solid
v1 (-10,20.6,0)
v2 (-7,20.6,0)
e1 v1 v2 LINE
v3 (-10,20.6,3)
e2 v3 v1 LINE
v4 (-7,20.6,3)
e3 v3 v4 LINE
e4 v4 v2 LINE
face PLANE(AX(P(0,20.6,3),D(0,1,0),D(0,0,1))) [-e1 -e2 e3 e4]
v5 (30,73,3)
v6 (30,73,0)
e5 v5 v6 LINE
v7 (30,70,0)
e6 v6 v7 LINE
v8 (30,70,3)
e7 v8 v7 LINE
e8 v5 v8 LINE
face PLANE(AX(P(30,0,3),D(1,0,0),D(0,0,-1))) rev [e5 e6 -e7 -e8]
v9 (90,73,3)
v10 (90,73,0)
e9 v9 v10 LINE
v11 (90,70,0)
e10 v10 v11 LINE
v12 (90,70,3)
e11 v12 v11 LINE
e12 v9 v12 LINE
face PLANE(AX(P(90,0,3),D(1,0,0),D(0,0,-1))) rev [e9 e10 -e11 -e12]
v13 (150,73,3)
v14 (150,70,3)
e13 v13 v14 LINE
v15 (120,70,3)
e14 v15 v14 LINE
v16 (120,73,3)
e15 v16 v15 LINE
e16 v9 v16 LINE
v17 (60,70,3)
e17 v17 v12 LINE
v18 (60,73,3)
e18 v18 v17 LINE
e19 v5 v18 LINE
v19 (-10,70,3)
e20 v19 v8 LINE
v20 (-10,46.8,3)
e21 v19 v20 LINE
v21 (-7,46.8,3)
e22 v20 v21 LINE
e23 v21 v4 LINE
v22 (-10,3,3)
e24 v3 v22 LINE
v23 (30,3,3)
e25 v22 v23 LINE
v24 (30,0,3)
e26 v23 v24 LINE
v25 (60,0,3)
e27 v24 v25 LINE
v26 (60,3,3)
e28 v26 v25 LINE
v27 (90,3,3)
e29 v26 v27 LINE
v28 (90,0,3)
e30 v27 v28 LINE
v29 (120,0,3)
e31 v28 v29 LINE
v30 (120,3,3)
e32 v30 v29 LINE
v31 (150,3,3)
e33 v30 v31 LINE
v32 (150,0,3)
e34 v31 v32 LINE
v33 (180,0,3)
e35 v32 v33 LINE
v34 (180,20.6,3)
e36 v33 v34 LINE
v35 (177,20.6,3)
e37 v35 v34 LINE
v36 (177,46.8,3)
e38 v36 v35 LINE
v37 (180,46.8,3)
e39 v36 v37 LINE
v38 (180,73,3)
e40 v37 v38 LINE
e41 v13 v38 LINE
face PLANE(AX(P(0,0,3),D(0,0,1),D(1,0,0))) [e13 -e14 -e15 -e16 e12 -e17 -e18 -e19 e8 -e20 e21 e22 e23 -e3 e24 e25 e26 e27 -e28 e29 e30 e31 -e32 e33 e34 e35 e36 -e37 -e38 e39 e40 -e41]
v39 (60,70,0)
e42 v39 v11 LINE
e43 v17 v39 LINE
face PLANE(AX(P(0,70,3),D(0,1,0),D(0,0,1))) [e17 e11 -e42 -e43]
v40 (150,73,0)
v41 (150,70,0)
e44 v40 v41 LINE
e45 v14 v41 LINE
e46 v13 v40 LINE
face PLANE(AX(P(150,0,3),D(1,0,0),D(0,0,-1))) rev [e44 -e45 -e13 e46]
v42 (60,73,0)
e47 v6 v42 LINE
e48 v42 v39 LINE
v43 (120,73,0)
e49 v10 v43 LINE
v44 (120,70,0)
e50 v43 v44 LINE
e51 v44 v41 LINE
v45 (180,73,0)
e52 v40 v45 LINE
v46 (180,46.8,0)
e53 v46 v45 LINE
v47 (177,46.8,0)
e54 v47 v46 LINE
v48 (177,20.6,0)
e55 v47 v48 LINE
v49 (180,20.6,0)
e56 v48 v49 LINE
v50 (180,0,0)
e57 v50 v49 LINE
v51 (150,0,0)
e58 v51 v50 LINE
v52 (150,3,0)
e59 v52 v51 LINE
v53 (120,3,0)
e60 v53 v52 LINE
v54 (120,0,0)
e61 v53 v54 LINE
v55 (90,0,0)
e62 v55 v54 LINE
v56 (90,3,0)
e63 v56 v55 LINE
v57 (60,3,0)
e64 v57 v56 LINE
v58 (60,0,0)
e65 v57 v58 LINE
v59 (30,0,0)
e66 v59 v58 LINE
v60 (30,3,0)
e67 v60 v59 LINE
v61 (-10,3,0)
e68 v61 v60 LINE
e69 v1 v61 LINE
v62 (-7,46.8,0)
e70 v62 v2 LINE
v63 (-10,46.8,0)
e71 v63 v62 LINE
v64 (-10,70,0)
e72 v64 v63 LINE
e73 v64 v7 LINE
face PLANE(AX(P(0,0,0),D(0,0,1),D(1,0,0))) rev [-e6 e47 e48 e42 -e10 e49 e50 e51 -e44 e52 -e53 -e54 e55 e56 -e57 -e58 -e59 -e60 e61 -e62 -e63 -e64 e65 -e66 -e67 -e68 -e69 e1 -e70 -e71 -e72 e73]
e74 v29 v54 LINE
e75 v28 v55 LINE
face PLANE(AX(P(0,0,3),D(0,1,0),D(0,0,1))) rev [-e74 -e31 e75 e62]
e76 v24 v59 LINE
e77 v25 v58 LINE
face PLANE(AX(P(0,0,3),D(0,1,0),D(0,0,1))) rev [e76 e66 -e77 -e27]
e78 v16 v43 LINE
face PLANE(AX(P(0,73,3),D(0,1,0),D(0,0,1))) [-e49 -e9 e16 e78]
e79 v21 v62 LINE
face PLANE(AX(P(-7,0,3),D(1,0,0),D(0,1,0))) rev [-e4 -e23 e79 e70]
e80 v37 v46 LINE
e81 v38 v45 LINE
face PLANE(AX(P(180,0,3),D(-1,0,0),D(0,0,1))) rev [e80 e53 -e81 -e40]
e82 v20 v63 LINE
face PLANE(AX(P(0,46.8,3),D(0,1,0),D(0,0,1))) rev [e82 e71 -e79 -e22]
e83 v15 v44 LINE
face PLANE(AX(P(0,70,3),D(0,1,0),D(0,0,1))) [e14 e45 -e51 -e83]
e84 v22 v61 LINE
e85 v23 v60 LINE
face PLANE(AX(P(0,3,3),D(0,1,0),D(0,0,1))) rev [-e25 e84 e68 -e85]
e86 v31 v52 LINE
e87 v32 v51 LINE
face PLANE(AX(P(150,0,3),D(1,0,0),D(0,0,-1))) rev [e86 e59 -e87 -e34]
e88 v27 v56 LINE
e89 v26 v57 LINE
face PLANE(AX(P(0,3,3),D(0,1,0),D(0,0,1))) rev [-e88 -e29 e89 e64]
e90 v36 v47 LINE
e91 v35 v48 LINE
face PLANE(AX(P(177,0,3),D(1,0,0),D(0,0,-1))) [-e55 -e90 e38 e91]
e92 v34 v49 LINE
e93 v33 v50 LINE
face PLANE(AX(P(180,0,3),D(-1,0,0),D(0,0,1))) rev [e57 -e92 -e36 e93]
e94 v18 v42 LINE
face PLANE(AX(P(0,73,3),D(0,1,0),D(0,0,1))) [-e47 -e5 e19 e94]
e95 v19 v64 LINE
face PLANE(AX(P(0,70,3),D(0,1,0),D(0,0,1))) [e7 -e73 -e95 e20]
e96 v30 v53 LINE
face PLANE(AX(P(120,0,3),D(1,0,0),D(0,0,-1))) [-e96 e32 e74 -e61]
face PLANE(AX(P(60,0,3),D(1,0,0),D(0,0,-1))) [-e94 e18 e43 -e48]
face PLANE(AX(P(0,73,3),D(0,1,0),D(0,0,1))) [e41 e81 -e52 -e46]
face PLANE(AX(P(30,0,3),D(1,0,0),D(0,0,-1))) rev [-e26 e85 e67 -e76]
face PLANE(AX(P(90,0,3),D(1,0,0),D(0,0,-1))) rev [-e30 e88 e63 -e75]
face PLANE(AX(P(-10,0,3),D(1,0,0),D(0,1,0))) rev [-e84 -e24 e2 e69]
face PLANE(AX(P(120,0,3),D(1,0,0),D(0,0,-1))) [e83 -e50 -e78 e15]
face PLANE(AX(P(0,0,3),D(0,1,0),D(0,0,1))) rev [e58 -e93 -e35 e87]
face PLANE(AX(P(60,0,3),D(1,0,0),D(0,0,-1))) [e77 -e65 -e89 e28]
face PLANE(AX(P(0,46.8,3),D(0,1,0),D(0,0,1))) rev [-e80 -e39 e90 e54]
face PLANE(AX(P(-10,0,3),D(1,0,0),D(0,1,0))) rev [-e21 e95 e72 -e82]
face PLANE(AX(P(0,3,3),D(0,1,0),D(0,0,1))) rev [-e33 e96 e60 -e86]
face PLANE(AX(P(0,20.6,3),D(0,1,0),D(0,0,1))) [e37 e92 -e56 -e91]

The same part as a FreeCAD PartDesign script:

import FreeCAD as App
import Part
import Sketcher


def add_polygon(sketch, points):
    """Adds a closed chain of lines whose ends are joined by coincident constraints."""
    first, n = sketch.GeometryCount, len(points)
    for a, b in zip(points, points[1:] + points[:1]):
        sketch.addGeometry(Part.LineSegment(App.Vector(*a, 0), App.Vector(*b, 0)), False)
    for i in range(n):
        sketch.addConstraint(Sketcher.Constraint("Coincident", first + i, 2, first + (i + 1) % n, 1))

doc = App.newDocument("Part")
body = doc.addObject("PartDesign::Body", "Body")

# Sketch on XY plane
sketch1 = body.newObject("Sketcher::SketchObject", "Sketch")
sketch1.AttachmentSupport = (doc.getObject("XY_Plane"), [""])
sketch1.MapMode = "FlatFace"
add_polygon(sketch1, [(30, 70), (-10, 70), (-10, 46.8), (-7, 46.8), (-7, 20.6), (-10, 20.6), (-10, 3), (30, 3), (30, 0), (60, 0), (60, 3), (90, 3), (90, 0), (120, 0), (120, 3), (150, 3), (150, 0), (180, 0), (180, 20.6), (177, 20.6), (177, 46.8), (180, 46.8), (180, 73), (150, 73), (150, 70), (120, 70), (120, 73), (90, 73), (90, 70), (60, 70), (60, 73), (30, 73)])  # lines 0-31
sketch1.addConstraint(Sketcher.Constraint("Horizontal", 0))
sketch1.addConstraint(Sketcher.Constraint("Vertical", 1))
sketch1.addConstraint(Sketcher.Constraint("Horizontal", 2))
sketch1.addConstraint(Sketcher.Constraint("Vertical", 3))
sketch1.addConstraint(Sketcher.Constraint("Horizontal", 4))
sketch1.addConstraint(Sketcher.Constraint("Vertical", 5))
sketch1.addConstraint(Sketcher.Constraint("Horizontal", 6))
sketch1.addConstraint(Sketcher.Constraint("Vertical", 7))
sketch1.addConstraint(Sketcher.Constraint("Horizontal", 8))
sketch1.addConstraint(Sketcher.Constraint("Vertical", 9))
sketch1.addConstraint(Sketcher.Constraint("Horizontal", 10))
sketch1.addConstraint(Sketcher.Constraint("Vertical", 11))
sketch1.addConstraint(Sketcher.Constraint("Horizontal", 12))
sketch1.addConstraint(Sketcher.Constraint("Vertical", 13))
sketch1.addConstraint(Sketcher.Constraint("Horizontal", 14))
sketch1.addConstraint(Sketcher.Constraint("Vertical", 15))
sketch1.addConstraint(Sketcher.Constraint("Horizontal", 16))
sketch1.addConstraint(Sketcher.Constraint("Vertical", 17))
sketch1.addConstraint(Sketcher.Constraint("Horizontal", 18))
sketch1.addConstraint(Sketcher.Constraint("Vertical", 19))
sketch1.addConstraint(Sketcher.Constraint("Horizontal", 20))
sketch1.addConstraint(Sketcher.Constraint("Vertical", 21))
sketch1.addConstraint(Sketcher.Constraint("Horizontal", 22))
sketch1.addConstraint(Sketcher.Constraint("Vertical", 23))
sketch1.addConstraint(Sketcher.Constraint("Horizontal", 24))
sketch1.addConstraint(Sketcher.Constraint("Vertical", 25))
sketch1.addConstraint(Sketcher.Constraint("Horizontal", 26))
sketch1.addConstraint(Sketcher.Constraint("Vertical", 27))
sketch1.addConstraint(Sketcher.Constraint("Horizontal", 28))
sketch1.addConstraint(Sketcher.Constraint("Vertical", 29))
sketch1.addConstraint(Sketcher.Constraint("Horizontal", 30))
sketch1.addConstraint(Sketcher.Constraint("Vertical", 31))
sketch1.addConstraint(Sketcher.Constraint("PointOnObject", 7, 2, -1))
sketch1.addConstraint(Sketcher.Constraint("PointOnObject", 11, 2, -1))
sketch1.addConstraint(Sketcher.Constraint("PointOnObject", 15, 2, -1))
sketch1.addConstraint(Sketcher.Constraint("Horizontal", 6, 2, 9, 2))
sketch1.addConstraint(Sketcher.Constraint("Horizontal", 10, 2, 13, 2))
sketch1.addConstraint(Sketcher.Constraint("Horizontal", 4, 2, 17, 2))
sketch1.addConstraint(Sketcher.Constraint("Horizontal", 2, 2, 19, 2))
sketch1.addConstraint(Sketcher.Constraint("Horizontal", 0, 2, 23, 2))
sketch1.addConstraint(Sketcher.Constraint("Horizontal", 22, 2, 25, 2))
sketch1.addConstraint(Sketcher.Constraint("Horizontal", 24, 2, 27, 2))
sketch1.addConstraint(Sketcher.Constraint("Horizontal", 26, 2, 29, 2))
sketch1.addConstraint(Sketcher.Constraint("Vertical", 1, 2, 4, 2))
sketch1.addConstraint(Sketcher.Constraint("Vertical", 17, 2, 20, 2))
sketch1.addConstraint(Sketcher.Constraint("Vertical", 15, 2, 22, 2))
sketch1.addConstraint(Sketcher.Constraint("Vertical", 13, 2, 24, 2))
sketch1.addConstraint(Sketcher.Constraint("Vertical", 11, 2, 26, 2))
sketch1.addConstraint(Sketcher.Constraint("Vertical", 9, 2, 28, 2))
sketch1.addConstraint(Sketcher.Constraint("Vertical", 7, 2, 30, 2))
sketch1.addConstraint(Sketcher.Constraint("Equal", 8, 10))
sketch1.addConstraint(Sketcher.Constraint("Equal", 10, 12))
sketch1.addConstraint(Sketcher.Constraint("Equal", 12, 14))
sketch1.addConstraint(Sketcher.Constraint("Equal", 14, 16))
sketch1.addConstraint(Sketcher.Constraint("Equal", 4, 18))
sketch1.addConstraint(Sketcher.Constraint("Equal", 20, 7))
sketch1.addConstraint(Sketcher.Constraint("Equal", 19, 21))
sketch1.addConstraint(Sketcher.Constraint("Equal", 15, 23))
sketch1.addConstraint(Sketcher.Constraint("DistanceX", 0, 2, 0, 1, 40.0))
sketch1.addConstraint(Sketcher.Constraint("DistanceX", 2, 1, 2, 2, 3.0))
sketch1.addConstraint(Sketcher.Constraint("DistanceX", 8, 1, 8, 2, 30.0))
sketch1.addConstraint(Sketcher.Constraint("DistanceY", 1, 2, 1, 1, 23.2))
sketch1.addConstraint(Sketcher.Constraint("DistanceY", 5, 2, 5, 1, 17.6))
sketch1.addConstraint(Sketcher.Constraint("DistanceX", 0, 2, -1, 1, 10.0))
pad1 = body.newObject("PartDesign::Pad", "Pad")
pad1.Profile = sketch1
pad1.Length = 3

doc.recompute()
